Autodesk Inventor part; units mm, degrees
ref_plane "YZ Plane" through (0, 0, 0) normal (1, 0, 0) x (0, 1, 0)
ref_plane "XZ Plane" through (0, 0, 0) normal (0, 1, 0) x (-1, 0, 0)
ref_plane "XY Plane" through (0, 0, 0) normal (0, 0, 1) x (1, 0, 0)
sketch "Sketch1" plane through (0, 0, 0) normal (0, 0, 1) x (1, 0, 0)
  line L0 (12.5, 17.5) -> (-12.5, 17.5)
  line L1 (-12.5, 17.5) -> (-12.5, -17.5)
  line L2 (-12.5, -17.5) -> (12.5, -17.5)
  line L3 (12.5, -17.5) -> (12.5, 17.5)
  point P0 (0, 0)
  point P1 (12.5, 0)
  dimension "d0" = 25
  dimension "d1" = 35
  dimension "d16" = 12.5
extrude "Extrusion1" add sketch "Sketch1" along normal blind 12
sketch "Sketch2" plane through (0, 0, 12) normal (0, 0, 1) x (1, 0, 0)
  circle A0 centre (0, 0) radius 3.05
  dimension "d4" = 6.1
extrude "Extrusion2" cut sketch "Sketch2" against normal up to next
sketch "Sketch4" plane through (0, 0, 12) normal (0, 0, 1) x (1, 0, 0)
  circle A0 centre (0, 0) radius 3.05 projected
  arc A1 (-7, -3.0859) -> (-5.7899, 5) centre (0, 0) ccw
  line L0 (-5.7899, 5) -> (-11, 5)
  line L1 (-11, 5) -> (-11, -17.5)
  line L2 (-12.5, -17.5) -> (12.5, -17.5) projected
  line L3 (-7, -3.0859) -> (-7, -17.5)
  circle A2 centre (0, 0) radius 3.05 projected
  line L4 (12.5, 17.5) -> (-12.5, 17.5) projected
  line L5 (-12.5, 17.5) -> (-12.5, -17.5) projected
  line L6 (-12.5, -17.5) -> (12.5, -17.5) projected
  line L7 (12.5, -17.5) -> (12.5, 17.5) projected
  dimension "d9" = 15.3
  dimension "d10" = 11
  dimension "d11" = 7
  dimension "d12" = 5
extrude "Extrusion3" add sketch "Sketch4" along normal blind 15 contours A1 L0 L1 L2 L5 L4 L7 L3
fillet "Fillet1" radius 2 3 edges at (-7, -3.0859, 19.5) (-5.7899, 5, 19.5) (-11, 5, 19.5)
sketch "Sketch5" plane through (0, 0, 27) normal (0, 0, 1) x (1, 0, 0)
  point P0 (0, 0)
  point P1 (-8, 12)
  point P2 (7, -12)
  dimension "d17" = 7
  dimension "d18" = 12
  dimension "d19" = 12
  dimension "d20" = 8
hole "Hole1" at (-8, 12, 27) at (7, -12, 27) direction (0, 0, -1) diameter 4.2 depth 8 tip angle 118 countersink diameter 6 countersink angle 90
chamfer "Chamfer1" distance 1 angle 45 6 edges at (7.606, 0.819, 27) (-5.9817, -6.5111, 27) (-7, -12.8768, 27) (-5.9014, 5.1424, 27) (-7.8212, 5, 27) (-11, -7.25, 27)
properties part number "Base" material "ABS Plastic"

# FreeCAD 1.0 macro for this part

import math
import FreeCAD as App
import Part
import Sketcher

V = App.Vector


def edges_at(feature, points):
    """Names of the edges that pass closest to the given points."""
    edges = feature.Shape.Edges
    near = lambda p: min(range(len(edges)), key=lambda i: edges[i].distToShape(Part.Vertex(*p))[0])
    return sorted({f"Edge{near(p) + 1}" for p in points})

doc = App.newDocument("Part")
body = doc.addObject("PartDesign::Body", "Body")

# Sketch on XY plane
sketch1 = body.newObject("Sketcher::SketchObject", "Sketch")
sketch1.AttachmentSupport = (doc.getObject("XY_Plane"), [""])
sketch1.MapMode = "FlatFace"
sketch1.addGeometry(Part.LineSegment(V(12, -18, 0), V(12, 18, 0)), False)
sketch1.addGeometry(Part.LineSegment(V(12, 18, 0), V(-12, 18, 0)), False)
sketch1.addGeometry(Part.LineSegment(V(-12, 18, 0), V(-12, -18, 0)), False)
sketch1.addGeometry(Part.LineSegment(V(-12, -18, 0), V(12, -18, 0)), False)
sketch1.addConstraint(Sketcher.Constraint("Coincident", 0, 2, 1, 1))
sketch1.addConstraint(Sketcher.Constraint("Coincident", 1, 2, 2, 1))
sketch1.addConstraint(Sketcher.Constraint("Coincident", 2, 2, 3, 1))
sketch1.addConstraint(Sketcher.Constraint("Coincident", 3, 2, 0, 1))
sketch1.addConstraint(Sketcher.Constraint("Vertical", 0))
sketch1.addConstraint(Sketcher.Constraint("Horizontal", 1))
sketch1.addConstraint(Sketcher.Constraint("Vertical", 2))
sketch1.addConstraint(Sketcher.Constraint("Horizontal", 3))
sketch1.addConstraint(Sketcher.Constraint("Symmetric", 0, 2, 2, 2, -1, 1))
sketch1.addConstraint(Sketcher.Constraint("DistanceX", 1, 2, 1, 1, 25.0))
sketch1.addConstraint(Sketcher.Constraint("DistanceY", 0, 1, 0, 2, 35.0))
pad1 = body.newObject("PartDesign::Pad", "Pad")
pad1.Profile = sketch1
pad1.Length = 12

# Sketch on XY plane
sketch2 = body.newObject("Sketcher::SketchObject", "Sketch001")
sketch2.AttachmentSupport = (doc.getObject("XY_Plane"), [""])
sketch2.MapMode = "FlatFace"
sketch2.AttachmentOffset = App.Placement(V(0, 0, 12), App.Rotation())
sketch2.addGeometry(Part.Circle(V(0, 0, 0), V(0, 0, 1), 3), False)
sketch2.addConstraint(Sketcher.Constraint("Coincident", 0, 3, -1, 1))
sketch2.addConstraint(Sketcher.Constraint("Diameter", 0, 6.1))
pocket1 = body.newObject("PartDesign::Pocket", "Pocket")
pocket1.Profile = sketch2
pocket1.Type = "UpToFirst"

# Sketch on XY plane
sketch3 = body.newObject("Sketcher::SketchObject", "Sketch002")
sketch3.AttachmentSupport = (doc.getObject("XY_Plane"), [""])
sketch3.MapMode = "FlatFace"
sketch3.AttachmentOffset = App.Placement(V(0, 0, 12), App.Rotation())
sketch3.addGeometry(Part.ArcOfCircle(Part.Circle(V(0, 0, 0), V(0, 0, 1), 7.7), math.radians(-156), math.radians(139)), False)
sketch3.addGeometry(Part.LineSegment(V(-7, -3.1, 0), V(-7, -17.5, 0)), False)
sketch3.addGeometry(Part.LineSegment(V(-7, -17.5, 0), V(12.5, -17.5, 0)), False)
sketch3.addGeometry(Part.LineSegment(V(12.5, -17.5, 0), V(12.5, 17.5, 0)), False)
sketch3.addGeometry(Part.LineSegment(V(12.5, 17.5, 0), V(-12.5, 17.5, 0)), False)
sketch3.addGeometry(Part.LineSegment(V(-12.5, 17.5, 0), V(-12.5, -17.5, 0)), False)
sketch3.addGeometry(Part.LineSegment(V(-12.5, -17.5, 0), V(-11, -17.5, 0)), False)
sketch3.addGeometry(Part.LineSegment(V(-11, -17.5, 0), V(-11, 5, 0)), False)
sketch3.addGeometry(Part.LineSegment(V(-11, 5, 0), V(-5.8, 5, 0)), False)
sketch3.addConstraint(Sketcher.Constraint("Coincident", 0, 1, 1, 1))
sketch3.addConstraint(Sketcher.Constraint("Coincident", 1, 2, 2, 1))
sketch3.addConstraint(Sketcher.Constraint("Coincident", 2, 2, 3, 1))
sketch3.addConstraint(Sketcher.Constraint("Coincident", 3, 2, 4, 1))
sketch3.addConstraint(Sketcher.Constraint("Coincident", 4, 2, 5, 1))
sketch3.addConstraint(Sketcher.Constraint("Coincident", 5, 2, 6, 1))
sketch3.addConstraint(Sketcher.Constraint("Coincident", 6, 2, 7, 1))
sketch3.addConstraint(Sketcher.Constraint("Coincident", 7, 2, 8, 1))
sketch3.addConstraint(Sketcher.Constraint("Coincident", 8, 2, 0, 2))
sketch3.addConstraint(Sketcher.Constraint("Vertical", 1))
sketch3.addConstraint(Sketcher.Constraint("Horizontal", 2))
sketch3.addConstraint(Sketcher.Constraint("Vertical", 3))
sketch3.addConstraint(Sketcher.Constraint("Horizontal", 4))
sketch3.addConstraint(Sketcher.Constraint("Vertical", 5))
sketch3.addConstraint(Sketcher.Constraint("Horizontal", 6))
sketch3.addConstraint(Sketcher.Constraint("Vertical", 7))
sketch3.addConstraint(Sketcher.Constraint("Horizontal", 8))
sketch3.addConstraint(Sketcher.Constraint("Coincident", 0, 3, -1, 1))
sketch3.addConstraint(Sketcher.Constraint("Symmetric", 2, 2, 4, 2, -1, 1))
sketch3.addConstraint(Sketcher.Constraint("Horizontal", 2, 2, 5, 2))
sketch3.addConstraint(Sketcher.Constraint("Radius", 0, 7.65))
sketch3.addConstraint(Sketcher.Constraint("DistanceX", 0, 1, -1, 1, 7.0))
sketch3.addConstraint(Sketcher.Constraint("DistanceX", 6, 2, -1, 1, 11.0))
sketch3.addConstraint(Sketcher.Constraint("DistanceY", -1, 1, 7, 2, 5.0))
sketch3.addConstraint(Sketcher.Constraint("DistanceX", 4, 2, 4, 1, 25.0))
sketch3.addConstraint(Sketcher.Constraint("DistanceY", 3, 1, 3, 2, 35.0))
pad2 = body.newObject("PartDesign::Pad", "Pad001")
pad2.Profile = sketch3
pad2.Length = 15
doc.recompute()

fillet = body.newObject("PartDesign::Fillet", "Fillet")
fillet.Base = (pad2, edges_at(pad2, [(-7, -3.086, 19.5), (-5.79, 5, 19.5), (-11, 5, 19.5)]))
fillet.Radius = 2

# Sketch on XY plane
sketch4 = body.newObject("Sketcher::SketchObject", "Sketch003")
sketch4.AttachmentSupport = (doc.getObject("XY_Plane"), [""])
sketch4.MapMode = "FlatFace"
sketch4.AttachmentOffset = App.Placement(V(0, 0, 27), App.Rotation())
sketch4.addGeometry(Part.Circle(V(-8, 12, 0), V(0, 0, 1), 2.1), False)
sketch4.addGeometry(Part.Circle(V(7, -12, 0), V(0, 0, 1), 2.1), False)
sketch4.addConstraint(Sketcher.Constraint("Equal", 0, 1))
sketch4.addConstraint(Sketcher.Constraint("Diameter", 0, 4.2))
sketch4.addConstraint(Sketcher.Constraint("DistanceX", 0, 3, -1, 1, 8.0))
sketch4.addConstraint(Sketcher.Constraint("DistanceY", -1, 1, 0, 3, 12.0))
sketch4.addConstraint(Sketcher.Constraint("DistanceX", -1, 1, 1, 3, 7.0))
sketch4.addConstraint(Sketcher.Constraint("DistanceY", 1, 3, -1, 1, 12.0))
doc.recompute()
hole = body.newObject("PartDesign::Hole", "Hole")
hole.Profile = sketch4
hole.ThreadType = "None"
hole.Diameter = 4.2
hole.DepthType = "Dimension"
hole.Depth = 8
hole.DrillPoint = "Angled"
hole.DrillPointAngle = 118
hole.HoleCutType = "Countersink"
hole.HoleCutDiameter = 6
hole.HoleCutCountersinkAngle = 90
doc.recompute()

chamfer = body.newObject("PartDesign::Chamfer", "Chamfer")
chamfer.Base = (hole, edges_at(hole, [
    (7.606, 0.819, 27),
    (-5.982, -6.511, 27),
    (-7, -12.877, 27),
    (-5.901, 5.142, 27),
    (-7.821, 5, 27),
    (-11, -7.25, 27),
]))
chamfer.Size = 1

doc.recompute()
